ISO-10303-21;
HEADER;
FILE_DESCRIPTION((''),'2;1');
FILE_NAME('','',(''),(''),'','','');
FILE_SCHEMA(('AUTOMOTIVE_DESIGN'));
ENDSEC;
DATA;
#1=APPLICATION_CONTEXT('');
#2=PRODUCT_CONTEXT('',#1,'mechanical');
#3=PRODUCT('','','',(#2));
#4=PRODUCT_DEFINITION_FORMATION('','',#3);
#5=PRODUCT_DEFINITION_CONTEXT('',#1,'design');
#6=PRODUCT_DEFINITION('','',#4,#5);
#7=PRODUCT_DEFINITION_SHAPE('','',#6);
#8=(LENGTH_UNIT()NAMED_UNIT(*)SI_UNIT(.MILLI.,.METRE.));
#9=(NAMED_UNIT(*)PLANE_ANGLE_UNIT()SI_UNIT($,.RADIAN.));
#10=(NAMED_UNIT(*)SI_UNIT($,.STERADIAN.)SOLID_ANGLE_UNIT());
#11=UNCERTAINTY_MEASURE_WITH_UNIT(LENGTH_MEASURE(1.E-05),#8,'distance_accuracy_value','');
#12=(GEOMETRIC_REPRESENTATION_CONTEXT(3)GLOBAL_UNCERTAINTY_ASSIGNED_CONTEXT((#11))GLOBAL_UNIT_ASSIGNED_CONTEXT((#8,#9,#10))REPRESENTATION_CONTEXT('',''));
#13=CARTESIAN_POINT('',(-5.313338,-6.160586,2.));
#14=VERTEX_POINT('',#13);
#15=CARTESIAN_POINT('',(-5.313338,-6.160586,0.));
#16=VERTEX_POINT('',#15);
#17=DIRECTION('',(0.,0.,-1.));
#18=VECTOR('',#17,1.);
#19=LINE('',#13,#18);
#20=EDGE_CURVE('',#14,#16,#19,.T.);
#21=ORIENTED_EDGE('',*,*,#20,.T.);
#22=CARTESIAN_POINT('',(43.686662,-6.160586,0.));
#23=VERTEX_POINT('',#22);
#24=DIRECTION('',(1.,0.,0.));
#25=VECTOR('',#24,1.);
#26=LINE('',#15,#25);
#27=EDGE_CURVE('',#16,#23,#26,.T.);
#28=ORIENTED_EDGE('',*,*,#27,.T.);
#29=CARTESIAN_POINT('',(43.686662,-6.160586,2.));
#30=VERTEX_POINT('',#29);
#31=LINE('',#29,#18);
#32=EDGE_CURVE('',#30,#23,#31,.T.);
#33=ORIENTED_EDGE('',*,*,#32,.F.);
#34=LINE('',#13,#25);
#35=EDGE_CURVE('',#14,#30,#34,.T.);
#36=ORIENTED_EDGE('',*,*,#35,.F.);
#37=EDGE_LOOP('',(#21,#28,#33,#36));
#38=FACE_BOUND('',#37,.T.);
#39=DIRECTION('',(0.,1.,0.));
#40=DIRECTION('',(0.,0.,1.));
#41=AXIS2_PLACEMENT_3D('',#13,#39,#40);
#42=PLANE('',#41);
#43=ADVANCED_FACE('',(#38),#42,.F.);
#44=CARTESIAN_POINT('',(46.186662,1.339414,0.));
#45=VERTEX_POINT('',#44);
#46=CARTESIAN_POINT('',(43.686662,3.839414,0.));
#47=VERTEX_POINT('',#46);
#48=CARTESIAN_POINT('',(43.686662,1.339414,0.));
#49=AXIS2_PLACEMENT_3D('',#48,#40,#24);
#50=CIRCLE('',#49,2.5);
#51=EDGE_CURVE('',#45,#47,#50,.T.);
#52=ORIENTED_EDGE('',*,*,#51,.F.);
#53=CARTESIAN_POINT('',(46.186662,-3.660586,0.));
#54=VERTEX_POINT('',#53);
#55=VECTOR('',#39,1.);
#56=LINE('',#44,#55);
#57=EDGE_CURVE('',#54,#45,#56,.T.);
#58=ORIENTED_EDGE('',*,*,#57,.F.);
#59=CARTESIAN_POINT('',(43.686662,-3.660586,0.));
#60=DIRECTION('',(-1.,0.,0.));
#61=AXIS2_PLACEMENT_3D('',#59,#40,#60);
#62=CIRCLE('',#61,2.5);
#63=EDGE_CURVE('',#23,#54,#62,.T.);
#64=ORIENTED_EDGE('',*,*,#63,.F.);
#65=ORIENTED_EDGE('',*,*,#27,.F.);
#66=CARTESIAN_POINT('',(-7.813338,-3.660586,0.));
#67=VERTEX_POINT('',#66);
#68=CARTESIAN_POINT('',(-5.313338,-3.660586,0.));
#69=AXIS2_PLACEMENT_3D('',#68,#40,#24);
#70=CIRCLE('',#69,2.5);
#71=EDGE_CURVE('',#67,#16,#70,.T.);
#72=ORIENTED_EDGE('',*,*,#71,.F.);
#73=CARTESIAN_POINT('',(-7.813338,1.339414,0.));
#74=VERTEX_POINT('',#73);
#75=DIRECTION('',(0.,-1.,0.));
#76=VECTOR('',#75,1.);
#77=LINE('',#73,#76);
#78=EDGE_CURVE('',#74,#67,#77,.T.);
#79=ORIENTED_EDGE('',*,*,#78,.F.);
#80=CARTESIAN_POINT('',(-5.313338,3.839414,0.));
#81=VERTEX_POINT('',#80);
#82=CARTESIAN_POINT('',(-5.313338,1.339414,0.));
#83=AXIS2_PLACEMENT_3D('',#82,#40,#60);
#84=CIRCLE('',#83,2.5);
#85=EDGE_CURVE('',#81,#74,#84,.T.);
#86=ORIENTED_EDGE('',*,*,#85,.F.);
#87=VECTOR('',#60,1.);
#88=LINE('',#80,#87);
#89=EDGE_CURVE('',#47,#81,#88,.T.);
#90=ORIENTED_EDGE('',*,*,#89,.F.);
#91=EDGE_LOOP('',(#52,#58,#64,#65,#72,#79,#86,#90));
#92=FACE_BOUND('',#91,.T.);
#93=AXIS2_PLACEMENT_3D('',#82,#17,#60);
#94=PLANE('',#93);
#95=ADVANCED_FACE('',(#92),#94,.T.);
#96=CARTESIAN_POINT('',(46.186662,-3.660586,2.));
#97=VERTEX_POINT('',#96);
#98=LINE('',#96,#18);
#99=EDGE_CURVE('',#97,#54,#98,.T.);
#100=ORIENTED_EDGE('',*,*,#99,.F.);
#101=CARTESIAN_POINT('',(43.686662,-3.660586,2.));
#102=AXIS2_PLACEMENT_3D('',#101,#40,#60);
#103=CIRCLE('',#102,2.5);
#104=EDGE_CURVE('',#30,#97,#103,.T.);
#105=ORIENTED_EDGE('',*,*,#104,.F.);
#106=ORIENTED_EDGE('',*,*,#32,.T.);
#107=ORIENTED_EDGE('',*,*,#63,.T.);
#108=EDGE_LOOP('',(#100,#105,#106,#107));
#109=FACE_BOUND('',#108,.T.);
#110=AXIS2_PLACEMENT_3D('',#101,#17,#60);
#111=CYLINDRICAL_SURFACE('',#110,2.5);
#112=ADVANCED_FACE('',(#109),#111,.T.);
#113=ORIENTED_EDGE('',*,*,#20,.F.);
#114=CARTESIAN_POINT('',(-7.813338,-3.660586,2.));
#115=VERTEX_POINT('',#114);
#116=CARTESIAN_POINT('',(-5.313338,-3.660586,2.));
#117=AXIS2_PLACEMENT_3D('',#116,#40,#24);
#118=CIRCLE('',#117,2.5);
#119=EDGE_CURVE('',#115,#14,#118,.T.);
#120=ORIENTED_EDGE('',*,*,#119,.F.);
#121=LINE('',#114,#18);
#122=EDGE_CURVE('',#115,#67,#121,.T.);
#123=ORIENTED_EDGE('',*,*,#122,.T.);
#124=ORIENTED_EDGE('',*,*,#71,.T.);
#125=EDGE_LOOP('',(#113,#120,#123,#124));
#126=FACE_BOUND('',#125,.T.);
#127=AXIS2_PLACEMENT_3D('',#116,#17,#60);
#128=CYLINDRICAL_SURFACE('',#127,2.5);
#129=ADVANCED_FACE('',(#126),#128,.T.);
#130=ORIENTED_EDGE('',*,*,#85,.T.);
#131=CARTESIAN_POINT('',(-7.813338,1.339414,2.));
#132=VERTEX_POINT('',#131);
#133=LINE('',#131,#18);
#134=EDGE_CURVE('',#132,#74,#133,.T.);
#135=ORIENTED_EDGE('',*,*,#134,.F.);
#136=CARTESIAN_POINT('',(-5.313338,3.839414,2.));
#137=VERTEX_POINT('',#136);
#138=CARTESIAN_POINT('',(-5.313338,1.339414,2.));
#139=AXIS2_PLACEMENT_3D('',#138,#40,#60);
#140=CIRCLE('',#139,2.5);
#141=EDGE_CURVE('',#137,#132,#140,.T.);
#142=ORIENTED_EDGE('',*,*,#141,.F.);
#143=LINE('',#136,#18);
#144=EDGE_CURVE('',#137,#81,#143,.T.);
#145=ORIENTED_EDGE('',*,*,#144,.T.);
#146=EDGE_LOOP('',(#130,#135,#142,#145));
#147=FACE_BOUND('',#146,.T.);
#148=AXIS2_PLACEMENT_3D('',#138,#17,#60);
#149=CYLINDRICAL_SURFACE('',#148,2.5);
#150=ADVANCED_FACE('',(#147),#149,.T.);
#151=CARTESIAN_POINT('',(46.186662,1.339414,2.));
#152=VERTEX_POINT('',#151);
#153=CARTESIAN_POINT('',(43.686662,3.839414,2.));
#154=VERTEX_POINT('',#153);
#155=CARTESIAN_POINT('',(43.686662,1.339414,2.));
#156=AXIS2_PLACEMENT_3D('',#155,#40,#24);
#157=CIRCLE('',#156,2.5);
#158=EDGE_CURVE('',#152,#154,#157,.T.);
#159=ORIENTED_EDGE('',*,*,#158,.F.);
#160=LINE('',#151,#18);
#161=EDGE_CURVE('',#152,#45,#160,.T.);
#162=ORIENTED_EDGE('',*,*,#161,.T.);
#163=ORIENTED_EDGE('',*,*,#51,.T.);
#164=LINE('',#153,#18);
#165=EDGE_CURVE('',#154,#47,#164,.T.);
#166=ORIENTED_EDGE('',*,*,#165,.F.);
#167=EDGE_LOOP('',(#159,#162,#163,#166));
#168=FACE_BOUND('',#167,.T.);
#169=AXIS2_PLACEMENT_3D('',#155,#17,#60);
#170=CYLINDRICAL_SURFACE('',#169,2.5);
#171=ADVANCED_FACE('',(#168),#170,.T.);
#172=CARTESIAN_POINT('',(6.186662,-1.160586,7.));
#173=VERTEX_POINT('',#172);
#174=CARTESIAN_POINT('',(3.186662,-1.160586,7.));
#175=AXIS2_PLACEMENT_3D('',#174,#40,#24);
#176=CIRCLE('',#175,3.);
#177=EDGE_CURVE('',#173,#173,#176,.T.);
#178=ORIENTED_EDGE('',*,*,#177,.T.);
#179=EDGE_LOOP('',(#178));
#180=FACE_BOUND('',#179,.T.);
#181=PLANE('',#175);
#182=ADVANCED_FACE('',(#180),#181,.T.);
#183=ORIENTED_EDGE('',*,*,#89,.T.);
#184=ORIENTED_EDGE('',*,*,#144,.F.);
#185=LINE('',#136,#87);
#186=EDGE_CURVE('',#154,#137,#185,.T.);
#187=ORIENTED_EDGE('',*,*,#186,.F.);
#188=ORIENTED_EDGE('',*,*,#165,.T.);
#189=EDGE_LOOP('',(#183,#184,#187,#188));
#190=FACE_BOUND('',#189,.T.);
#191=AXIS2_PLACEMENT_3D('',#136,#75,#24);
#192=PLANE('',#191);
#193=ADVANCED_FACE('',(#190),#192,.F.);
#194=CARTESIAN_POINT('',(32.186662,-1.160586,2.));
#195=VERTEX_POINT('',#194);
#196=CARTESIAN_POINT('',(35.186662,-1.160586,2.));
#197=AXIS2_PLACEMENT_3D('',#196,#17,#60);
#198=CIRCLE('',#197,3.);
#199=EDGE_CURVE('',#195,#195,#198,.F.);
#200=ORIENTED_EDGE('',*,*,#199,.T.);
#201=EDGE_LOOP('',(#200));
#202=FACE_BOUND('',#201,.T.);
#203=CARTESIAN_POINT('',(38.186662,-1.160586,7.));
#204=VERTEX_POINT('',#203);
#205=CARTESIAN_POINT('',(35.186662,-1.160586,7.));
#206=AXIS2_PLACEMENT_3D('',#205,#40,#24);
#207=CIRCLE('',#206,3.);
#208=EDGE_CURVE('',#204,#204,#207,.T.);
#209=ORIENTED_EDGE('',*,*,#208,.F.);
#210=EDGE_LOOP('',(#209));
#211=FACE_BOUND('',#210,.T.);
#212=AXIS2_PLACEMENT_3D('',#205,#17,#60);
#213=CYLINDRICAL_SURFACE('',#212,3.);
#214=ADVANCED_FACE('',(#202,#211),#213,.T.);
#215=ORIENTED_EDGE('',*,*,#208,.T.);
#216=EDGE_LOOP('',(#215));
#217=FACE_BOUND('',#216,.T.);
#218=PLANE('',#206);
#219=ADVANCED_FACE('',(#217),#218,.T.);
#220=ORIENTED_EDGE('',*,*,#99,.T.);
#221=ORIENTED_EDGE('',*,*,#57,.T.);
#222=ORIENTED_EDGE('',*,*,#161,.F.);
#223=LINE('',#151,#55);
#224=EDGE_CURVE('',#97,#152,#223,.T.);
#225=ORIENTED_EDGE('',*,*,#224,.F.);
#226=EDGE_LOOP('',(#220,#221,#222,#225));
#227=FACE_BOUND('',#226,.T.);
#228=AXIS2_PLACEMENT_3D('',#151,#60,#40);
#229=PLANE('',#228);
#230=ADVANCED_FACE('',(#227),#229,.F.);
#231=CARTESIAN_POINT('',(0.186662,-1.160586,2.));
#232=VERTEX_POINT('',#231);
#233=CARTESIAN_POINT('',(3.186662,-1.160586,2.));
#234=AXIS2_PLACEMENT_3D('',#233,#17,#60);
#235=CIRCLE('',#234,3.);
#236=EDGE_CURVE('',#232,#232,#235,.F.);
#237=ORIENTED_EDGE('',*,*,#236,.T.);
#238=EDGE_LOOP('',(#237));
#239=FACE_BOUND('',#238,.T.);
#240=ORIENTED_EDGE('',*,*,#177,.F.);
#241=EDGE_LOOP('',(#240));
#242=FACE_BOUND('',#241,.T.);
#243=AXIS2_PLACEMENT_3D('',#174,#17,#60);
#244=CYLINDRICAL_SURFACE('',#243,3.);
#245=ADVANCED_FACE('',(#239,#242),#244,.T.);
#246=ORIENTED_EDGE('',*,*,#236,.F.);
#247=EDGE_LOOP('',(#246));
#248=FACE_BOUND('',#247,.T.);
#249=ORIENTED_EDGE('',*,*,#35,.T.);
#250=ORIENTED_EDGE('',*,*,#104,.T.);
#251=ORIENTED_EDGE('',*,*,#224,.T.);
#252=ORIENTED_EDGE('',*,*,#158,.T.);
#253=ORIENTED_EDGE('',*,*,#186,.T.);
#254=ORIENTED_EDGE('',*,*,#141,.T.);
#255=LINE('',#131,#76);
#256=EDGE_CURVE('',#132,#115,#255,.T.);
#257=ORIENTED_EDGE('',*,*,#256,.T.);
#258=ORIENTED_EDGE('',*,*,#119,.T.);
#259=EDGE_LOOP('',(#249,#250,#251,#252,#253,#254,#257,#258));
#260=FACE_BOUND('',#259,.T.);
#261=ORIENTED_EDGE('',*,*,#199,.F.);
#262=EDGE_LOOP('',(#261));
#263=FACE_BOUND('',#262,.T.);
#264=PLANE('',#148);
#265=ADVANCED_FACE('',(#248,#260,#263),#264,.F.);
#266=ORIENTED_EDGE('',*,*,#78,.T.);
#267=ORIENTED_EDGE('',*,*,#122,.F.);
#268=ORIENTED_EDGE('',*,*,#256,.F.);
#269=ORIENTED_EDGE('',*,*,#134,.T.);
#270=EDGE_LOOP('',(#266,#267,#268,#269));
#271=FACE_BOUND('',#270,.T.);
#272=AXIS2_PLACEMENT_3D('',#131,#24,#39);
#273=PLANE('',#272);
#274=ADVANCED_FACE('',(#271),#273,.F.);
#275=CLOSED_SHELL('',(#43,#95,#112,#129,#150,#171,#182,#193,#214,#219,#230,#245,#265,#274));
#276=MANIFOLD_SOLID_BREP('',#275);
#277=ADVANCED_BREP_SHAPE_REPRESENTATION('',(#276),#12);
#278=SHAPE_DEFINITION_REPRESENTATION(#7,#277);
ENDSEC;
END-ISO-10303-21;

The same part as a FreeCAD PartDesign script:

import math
import FreeCAD as App
import Part
import Sketcher

doc = App.newDocument("Part")
params = doc.addObject("Spreadsheet::Sheet", "Params")
for row, (alias, value) in enumerate([
    ("sketch1_radius", "2.5 mm"),
    ("sketch1_width", "49 mm"),
    ("sketch1_height", "5 mm"),
    ("pad1_length", "2 mm"),
    ("sketch2_diameter", "6 mm"),
    ("pad2_length", "5 mm"),
], start=1):
    params.set(f"A{row}", alias)
    params.set(f"B{row}", "=" + value)
    params.setAlias(f"B{row}", alias)

body = doc.addObject("PartDesign::Body", "Body")

# Sketch on XY plane
sketch1 = body.newObject("Sketcher::SketchObject", "Sketch")
sketch1.AttachmentSupport = (doc.getObject("XY_Plane"), [""])
sketch1.MapMode = "FlatFace"
sketch1.addGeometry([
    Part.LineSegment(App.Vector(43.686662, 3.839414, 0), App.Vector(-5.313338, 3.839414, 0)),  # 0
    Part.ArcOfCircle(Part.Circle(App.Vector(-5.313338, 1.339414, 0), App.Vector(0, 0, 1), 2.5), math.radians(90), math.radians(180)),  # 1
    Part.LineSegment(App.Vector(-7.813338, 1.339414, 0), App.Vector(-7.813338, -3.660586, 0)),  # 2
    Part.ArcOfCircle(Part.Circle(App.Vector(-5.313338, -3.660586, 0), App.Vector(0, 0, 1), 2.5), math.radians(180), math.radians(270)),  # 3
    Part.LineSegment(App.Vector(-5.313338, -6.160586, 0), App.Vector(43.686662, -6.160586, 0)),  # 4
    Part.ArcOfCircle(Part.Circle(App.Vector(43.686662, -3.660586, 0), App.Vector(0, 0, 1), 2.5), math.radians(-90), math.radians(0)),  # 5
    Part.LineSegment(App.Vector(46.186662, -3.660586, 0), App.Vector(46.186662, 1.339414, 0)),  # 6
    Part.ArcOfCircle(Part.Circle(App.Vector(43.686662, 1.339414, 0), App.Vector(0, 0, 1), 2.5), math.radians(0), math.radians(90)),  # 7
], False)
sketch1.addConstraint([
    Sketcher.Constraint("Tangent", 0, 2, 1, 1),
    Sketcher.Constraint("Tangent", 1, 2, 2, 1),
    Sketcher.Constraint("Tangent", 2, 2, 3, 1),
    Sketcher.Constraint("Tangent", 3, 2, 4, 1),
    Sketcher.Constraint("Tangent", 4, 2, 5, 1),
    Sketcher.Constraint("Tangent", 5, 2, 6, 1),
    Sketcher.Constraint("Tangent", 6, 2, 7, 1),
    Sketcher.Constraint("Tangent", 7, 2, 0, 1),
    Sketcher.Constraint("Horizontal", 0),
    Sketcher.Constraint("Vertical", 2),
    Sketcher.Constraint("Horizontal", 4),
    Sketcher.Constraint("Vertical", 6),
    Sketcher.Constraint("Equal", 1, 3),
    Sketcher.Constraint("Equal", 3, 5),
    Sketcher.Constraint("Equal", 5, 7),
    Sketcher.Constraint("Radius", 1, 2.5),
    Sketcher.Constraint("DistanceX", 0, 2, 0, 1, 49.0),
    Sketcher.Constraint("DistanceY", 2, 2, 2, 1, 5.0),
    Sketcher.Constraint("DistanceX", 1, 3, -1, 1, 5.313338),
    Sketcher.Constraint("DistanceY", -1, 1, 1, 3, 1.339414),
])
sketch1.setExpression("Constraints[15]", "Params.sketch1_radius")
sketch1.setExpression("Constraints[16]", "Params.sketch1_width")
sketch1.setExpression("Constraints[17]", "Params.sketch1_height")
pad1 = body.newObject("PartDesign::Pad", "Pad")
pad1.Profile = sketch1
pad1.setExpression("Length", "Params.pad1_length")

# Sketch on XY plane
sketch2 = body.newObject("Sketcher::SketchObject", "Sketch001")
sketch2.AttachmentSupport = (doc.getObject("XY_Plane"), [""])
sketch2.MapMode = "FlatFace"
sketch2.AttachmentOffset = App.Placement(App.Vector(0, 0, 2), App.Rotation())
sketch2.addGeometry([
    Part.Circle(App.Vector(3.186662, -1.160586, 0), App.Vector(0, 0, 1), 3),
    Part.Circle(App.Vector(35.186662, -1.160586, 0), App.Vector(0, 0, 1), 3),
], False)
sketch2.addConstraint([
    Sketcher.Constraint("Equal", 0, 1),
    Sketcher.Constraint("Horizontal", 0, 3, 1, 3),
    Sketcher.Constraint("Diameter", 0, 6.0),
    Sketcher.Constraint("DistanceX", 0, 3, 1, 3, 32.0),
    Sketcher.Constraint("DistanceX", -1, 1, 0, 3, 3.186662),
    Sketcher.Constraint("DistanceY", 0, 3, -1, 1, 1.160586),
])
sketch2.setExpression("Constraints[2]", "Params.sketch2_diameter")
pad2 = body.newObject("PartDesign::Pad", "Pad001")
pad2.Profile = sketch2
pad2.setExpression("Length", "Params.pad2_length")

doc.recompute()
